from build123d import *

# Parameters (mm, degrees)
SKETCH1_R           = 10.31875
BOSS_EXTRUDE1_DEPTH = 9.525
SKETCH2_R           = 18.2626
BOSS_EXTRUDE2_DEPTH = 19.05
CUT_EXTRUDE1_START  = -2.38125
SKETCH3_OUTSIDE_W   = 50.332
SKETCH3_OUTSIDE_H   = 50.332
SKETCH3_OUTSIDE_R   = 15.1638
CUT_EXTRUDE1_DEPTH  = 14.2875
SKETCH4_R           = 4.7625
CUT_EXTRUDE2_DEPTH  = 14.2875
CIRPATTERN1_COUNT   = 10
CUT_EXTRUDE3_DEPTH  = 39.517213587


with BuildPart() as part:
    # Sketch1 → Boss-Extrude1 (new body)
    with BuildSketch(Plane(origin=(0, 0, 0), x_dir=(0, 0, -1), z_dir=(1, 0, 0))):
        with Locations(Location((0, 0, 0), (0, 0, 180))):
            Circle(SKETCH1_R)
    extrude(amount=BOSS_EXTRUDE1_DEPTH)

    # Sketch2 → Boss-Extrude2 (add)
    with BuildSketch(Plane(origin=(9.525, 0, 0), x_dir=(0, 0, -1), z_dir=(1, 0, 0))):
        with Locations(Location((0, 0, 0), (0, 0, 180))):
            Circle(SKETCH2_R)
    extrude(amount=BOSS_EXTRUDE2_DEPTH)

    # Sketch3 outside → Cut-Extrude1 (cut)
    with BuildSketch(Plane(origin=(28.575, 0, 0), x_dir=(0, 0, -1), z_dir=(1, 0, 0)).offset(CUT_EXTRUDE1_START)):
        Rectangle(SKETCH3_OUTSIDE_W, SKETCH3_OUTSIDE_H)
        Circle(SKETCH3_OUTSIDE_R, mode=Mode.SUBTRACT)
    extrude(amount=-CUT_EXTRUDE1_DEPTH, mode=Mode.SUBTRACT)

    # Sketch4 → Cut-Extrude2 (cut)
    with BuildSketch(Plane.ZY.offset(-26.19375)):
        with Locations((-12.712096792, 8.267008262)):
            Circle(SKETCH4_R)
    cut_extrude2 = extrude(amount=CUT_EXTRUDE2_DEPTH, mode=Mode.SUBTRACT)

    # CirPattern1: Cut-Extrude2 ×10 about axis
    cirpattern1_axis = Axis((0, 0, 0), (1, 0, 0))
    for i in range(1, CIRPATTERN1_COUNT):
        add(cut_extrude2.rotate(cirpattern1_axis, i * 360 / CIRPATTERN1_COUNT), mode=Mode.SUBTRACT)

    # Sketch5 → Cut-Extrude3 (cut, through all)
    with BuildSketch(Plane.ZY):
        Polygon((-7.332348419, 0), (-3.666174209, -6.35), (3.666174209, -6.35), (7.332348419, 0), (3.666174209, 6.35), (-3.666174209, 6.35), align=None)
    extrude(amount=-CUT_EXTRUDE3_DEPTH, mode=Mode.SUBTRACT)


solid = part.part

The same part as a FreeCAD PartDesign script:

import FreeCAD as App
import Part
import Sketcher

V = App.Vector
Q = App.Units.Quantity


def add_polygon(sketch, points):
    """Adds a closed chain of lines whose ends are joined by coincident constraints."""
    first, n = sketch.GeometryCount, len(points)
    for a, b in zip(points, points[1:] + points[:1]):
        sketch.addGeometry(Part.LineSegment(App.Vector(*a, 0), App.Vector(*b, 0)), False)
    for i in range(n):
        sketch.addConstraint(Sketcher.Constraint("Coincident", first + i, 2, first + (i + 1) % n, 1))

doc = App.newDocument("Part")
params = doc.addObject("Spreadsheet::Sheet", "Params")
for row, (alias, value) in enumerate([
    ("sketch1_diameter", "0.8125 in"),
    ("pad1_length", "0.375 in"),
    ("sketch2_diameter", "1.438 in"),
    ("pad2_length", "0.75 in"),
    ("sketch3_diameter", "1.194 in"),
    ("pocket1_length", "0.5625 in"),
    ("sketch4_diameter", "0.375 in"),
    ("pocket2_length", "0.5625 in"),
], start=1):
    params.set(f"A{row}", alias)
    params.set(f"B{row}", "=" + value)
    params.setAlias(f"B{row}", alias)

body = doc.addObject("PartDesign::Body", "Body")

# Sketch on YZ plane
sketch1 = body.newObject("Sketcher::SketchObject", "Sketch")
sketch1.AttachmentSupport = (doc.getObject("YZ_Plane"), [""])
sketch1.MapMode = "FlatFace"
sketch1.addGeometry(Part.Circle(V(0, 0, 0), V(0, 0, 1), 10), False)
sketch1.addConstraint(Sketcher.Constraint("Coincident", 0, 3, -1, 1))
sketch1.addConstraint(Sketcher.Constraint("Diameter", 0, Q("0.8125 in")))
sketch1.setExpression("Constraints[1]", "Params.sketch1_diameter")
pad1 = body.newObject("PartDesign::Pad", "Pad")
pad1.Profile = sketch1
pad1.setExpression("Length", "Params.pad1_length")

# Sketch on YZ plane
sketch2 = body.newObject("Sketcher::SketchObject", "Sketch001")
sketch2.AttachmentSupport = (doc.getObject("YZ_Plane"), [""])
sketch2.MapMode = "FlatFace"
sketch2.AttachmentOffset = App.Placement(V(0, 0, 0.375 * 25.4), App.Rotation())
sketch2.addGeometry(Part.Circle(V(0, 0, 0), V(0, 0, 1), 18), False)
sketch2.addConstraint(Sketcher.Constraint("Coincident", 0, 3, -1, 1))
sketch2.addConstraint(Sketcher.Constraint("Diameter", 0, Q("1.438 in")))
sketch2.setExpression("Constraints[1]", "Params.sketch2_diameter")
pad2 = body.newObject("PartDesign::Pad", "Pad001")
pad2.Profile = sketch2
pad2.setExpression("Length", "Params.pad2_length")

# Sketch on YZ plane
sketch3 = body.newObject("Sketcher::SketchObject", "Sketch002")
sketch3.AttachmentSupport = (doc.getObject("YZ_Plane"), [""])
sketch3.MapMode = "FlatFace"
sketch3.AttachmentOffset = App.Placement(V(0, 0, 1.03125 * 25.4), App.Rotation())
add_polygon(sketch3, [(25, 25), (-25, 25), (-25, -25), (25, -25)])  # lines 0-3
sketch3.addGeometry(Part.Circle(V(0, 0, 0), V(0, 0, 1), 15), False)  # 4
sketch3.addConstraint(Sketcher.Constraint("Horizontal", 0))
sketch3.addConstraint(Sketcher.Constraint("Vertical", 1))
sketch3.addConstraint(Sketcher.Constraint("Horizontal", 2))
sketch3.addConstraint(Sketcher.Constraint("Vertical", 3))
sketch3.addConstraint(Sketcher.Constraint("Coincident", 4, 3, -1, 1))
sketch3.addConstraint(Sketcher.Constraint("Symmetric", 0, 2, 2, 2, -1, 1))
sketch3.addConstraint(Sketcher.Constraint("Equal", 2, 1))
sketch3.addConstraint(Sketcher.Constraint("Diameter", 4, Q("1.194 in")))
sketch3.addConstraint(Sketcher.Constraint("DistanceX", 0, 2, 0, 1, Q("50.332 mm")))
sketch3.setExpression("Constraints[11]", "Params.sketch3_diameter")
pocket1 = body.newObject("PartDesign::Pocket", "Pocket")
pocket1.Profile = sketch3
pocket1.setExpression("Length", "Params.pocket1_length")

# Sketch on YZ plane
sketch4 = body.newObject("Sketcher::SketchObject", "Sketch003")
sketch4.AttachmentSupport = (doc.getObject("YZ_Plane"), [""])
sketch4.MapMode = "FlatFace"
sketch4.AttachmentOffset = App.Placement(V(0, 0, 1.03125 * 25.4), App.Rotation())
sketch4.addGeometry(Part.Circle(V(8.3, -12.7, 0), V(0, 0, 1), 4.8), False)
sketch4.addConstraint(Sketcher.Constraint("Diameter", 0, Q("0.375 in")))
sketch4.addConstraint(Sketcher.Constraint("DistanceX", -1, 1, 0, 3, Q("8.267008 mm")))
sketch4.addConstraint(Sketcher.Constraint("DistanceY", 0, 3, -1, 1, Q("12.712097 mm")))
sketch4.setExpression("Constraints[0]", "Params.sketch4_diameter")
pocket2 = body.newObject("PartDesign::Pocket", "Pocket001")
pocket2.Profile = sketch4
pocket2.setExpression("Length", "Params.pocket2_length")
doc.recompute()

polarpattern = body.newObject("PartDesign::PolarPattern", "PolarPattern")
polarpattern.Originals = [pocket2]
polarpattern.Axis = (doc.getObject("X_Axis"), [""])
polarpattern.Angle = 360
polarpattern.Occurrences = 10
body.Tip = polarpattern

# Sketch on YZ plane
sketch5 = body.newObject("Sketcher::SketchObject", "Sketch004")
sketch5.AttachmentSupport = (doc.getObject("YZ_Plane"), [""])
sketch5.MapMode = "FlatFace"
add_polygon(sketch5, [(0, -7), (-6, -4), (-6, 4), (0, 7), (6, 4), (6, -4)])  # lines 0-5
sketch5.addConstraint(Sketcher.Constraint("Vertical", 1))
sketch5.addConstraint(Sketcher.Constraint("Vertical", 4))
sketch5.addConstraint(Sketcher.Constraint("Symmetric", 0, 2, 3, 2, -1, 1))
sketch5.addConstraint(Sketcher.Constraint("Symmetric", 2, 2, 5, 2, -1, 1))
sketch5.addConstraint(Sketcher.Constraint("PointOnObject", 2, 2, -2))
sketch5.addConstraint(Sketcher.Constraint("Parallel", 2, 5))
sketch5.addConstraint(Sketcher.Constraint("Horizontal", 1, 2, 3, 2))
sketch5.addConstraint(Sketcher.Constraint("Angle", 0, Q("150 deg")))
sketch5.addConstraint(Sketcher.Constraint("DistanceX", 1, 2, 3, 2, Q("0.5 in")))
sketch5.addConstraint(Sketcher.Constraint("DistanceY", 1, 1, 1, 2, Q("7.332348 mm")))
pocket3 = body.newObject("PartDesign::Pocket", "Pocket002")
pocket3.Profile = sketch5
pocket3.Type = "ThroughAll"
pocket3.Reversed = True

doc.recompute()
